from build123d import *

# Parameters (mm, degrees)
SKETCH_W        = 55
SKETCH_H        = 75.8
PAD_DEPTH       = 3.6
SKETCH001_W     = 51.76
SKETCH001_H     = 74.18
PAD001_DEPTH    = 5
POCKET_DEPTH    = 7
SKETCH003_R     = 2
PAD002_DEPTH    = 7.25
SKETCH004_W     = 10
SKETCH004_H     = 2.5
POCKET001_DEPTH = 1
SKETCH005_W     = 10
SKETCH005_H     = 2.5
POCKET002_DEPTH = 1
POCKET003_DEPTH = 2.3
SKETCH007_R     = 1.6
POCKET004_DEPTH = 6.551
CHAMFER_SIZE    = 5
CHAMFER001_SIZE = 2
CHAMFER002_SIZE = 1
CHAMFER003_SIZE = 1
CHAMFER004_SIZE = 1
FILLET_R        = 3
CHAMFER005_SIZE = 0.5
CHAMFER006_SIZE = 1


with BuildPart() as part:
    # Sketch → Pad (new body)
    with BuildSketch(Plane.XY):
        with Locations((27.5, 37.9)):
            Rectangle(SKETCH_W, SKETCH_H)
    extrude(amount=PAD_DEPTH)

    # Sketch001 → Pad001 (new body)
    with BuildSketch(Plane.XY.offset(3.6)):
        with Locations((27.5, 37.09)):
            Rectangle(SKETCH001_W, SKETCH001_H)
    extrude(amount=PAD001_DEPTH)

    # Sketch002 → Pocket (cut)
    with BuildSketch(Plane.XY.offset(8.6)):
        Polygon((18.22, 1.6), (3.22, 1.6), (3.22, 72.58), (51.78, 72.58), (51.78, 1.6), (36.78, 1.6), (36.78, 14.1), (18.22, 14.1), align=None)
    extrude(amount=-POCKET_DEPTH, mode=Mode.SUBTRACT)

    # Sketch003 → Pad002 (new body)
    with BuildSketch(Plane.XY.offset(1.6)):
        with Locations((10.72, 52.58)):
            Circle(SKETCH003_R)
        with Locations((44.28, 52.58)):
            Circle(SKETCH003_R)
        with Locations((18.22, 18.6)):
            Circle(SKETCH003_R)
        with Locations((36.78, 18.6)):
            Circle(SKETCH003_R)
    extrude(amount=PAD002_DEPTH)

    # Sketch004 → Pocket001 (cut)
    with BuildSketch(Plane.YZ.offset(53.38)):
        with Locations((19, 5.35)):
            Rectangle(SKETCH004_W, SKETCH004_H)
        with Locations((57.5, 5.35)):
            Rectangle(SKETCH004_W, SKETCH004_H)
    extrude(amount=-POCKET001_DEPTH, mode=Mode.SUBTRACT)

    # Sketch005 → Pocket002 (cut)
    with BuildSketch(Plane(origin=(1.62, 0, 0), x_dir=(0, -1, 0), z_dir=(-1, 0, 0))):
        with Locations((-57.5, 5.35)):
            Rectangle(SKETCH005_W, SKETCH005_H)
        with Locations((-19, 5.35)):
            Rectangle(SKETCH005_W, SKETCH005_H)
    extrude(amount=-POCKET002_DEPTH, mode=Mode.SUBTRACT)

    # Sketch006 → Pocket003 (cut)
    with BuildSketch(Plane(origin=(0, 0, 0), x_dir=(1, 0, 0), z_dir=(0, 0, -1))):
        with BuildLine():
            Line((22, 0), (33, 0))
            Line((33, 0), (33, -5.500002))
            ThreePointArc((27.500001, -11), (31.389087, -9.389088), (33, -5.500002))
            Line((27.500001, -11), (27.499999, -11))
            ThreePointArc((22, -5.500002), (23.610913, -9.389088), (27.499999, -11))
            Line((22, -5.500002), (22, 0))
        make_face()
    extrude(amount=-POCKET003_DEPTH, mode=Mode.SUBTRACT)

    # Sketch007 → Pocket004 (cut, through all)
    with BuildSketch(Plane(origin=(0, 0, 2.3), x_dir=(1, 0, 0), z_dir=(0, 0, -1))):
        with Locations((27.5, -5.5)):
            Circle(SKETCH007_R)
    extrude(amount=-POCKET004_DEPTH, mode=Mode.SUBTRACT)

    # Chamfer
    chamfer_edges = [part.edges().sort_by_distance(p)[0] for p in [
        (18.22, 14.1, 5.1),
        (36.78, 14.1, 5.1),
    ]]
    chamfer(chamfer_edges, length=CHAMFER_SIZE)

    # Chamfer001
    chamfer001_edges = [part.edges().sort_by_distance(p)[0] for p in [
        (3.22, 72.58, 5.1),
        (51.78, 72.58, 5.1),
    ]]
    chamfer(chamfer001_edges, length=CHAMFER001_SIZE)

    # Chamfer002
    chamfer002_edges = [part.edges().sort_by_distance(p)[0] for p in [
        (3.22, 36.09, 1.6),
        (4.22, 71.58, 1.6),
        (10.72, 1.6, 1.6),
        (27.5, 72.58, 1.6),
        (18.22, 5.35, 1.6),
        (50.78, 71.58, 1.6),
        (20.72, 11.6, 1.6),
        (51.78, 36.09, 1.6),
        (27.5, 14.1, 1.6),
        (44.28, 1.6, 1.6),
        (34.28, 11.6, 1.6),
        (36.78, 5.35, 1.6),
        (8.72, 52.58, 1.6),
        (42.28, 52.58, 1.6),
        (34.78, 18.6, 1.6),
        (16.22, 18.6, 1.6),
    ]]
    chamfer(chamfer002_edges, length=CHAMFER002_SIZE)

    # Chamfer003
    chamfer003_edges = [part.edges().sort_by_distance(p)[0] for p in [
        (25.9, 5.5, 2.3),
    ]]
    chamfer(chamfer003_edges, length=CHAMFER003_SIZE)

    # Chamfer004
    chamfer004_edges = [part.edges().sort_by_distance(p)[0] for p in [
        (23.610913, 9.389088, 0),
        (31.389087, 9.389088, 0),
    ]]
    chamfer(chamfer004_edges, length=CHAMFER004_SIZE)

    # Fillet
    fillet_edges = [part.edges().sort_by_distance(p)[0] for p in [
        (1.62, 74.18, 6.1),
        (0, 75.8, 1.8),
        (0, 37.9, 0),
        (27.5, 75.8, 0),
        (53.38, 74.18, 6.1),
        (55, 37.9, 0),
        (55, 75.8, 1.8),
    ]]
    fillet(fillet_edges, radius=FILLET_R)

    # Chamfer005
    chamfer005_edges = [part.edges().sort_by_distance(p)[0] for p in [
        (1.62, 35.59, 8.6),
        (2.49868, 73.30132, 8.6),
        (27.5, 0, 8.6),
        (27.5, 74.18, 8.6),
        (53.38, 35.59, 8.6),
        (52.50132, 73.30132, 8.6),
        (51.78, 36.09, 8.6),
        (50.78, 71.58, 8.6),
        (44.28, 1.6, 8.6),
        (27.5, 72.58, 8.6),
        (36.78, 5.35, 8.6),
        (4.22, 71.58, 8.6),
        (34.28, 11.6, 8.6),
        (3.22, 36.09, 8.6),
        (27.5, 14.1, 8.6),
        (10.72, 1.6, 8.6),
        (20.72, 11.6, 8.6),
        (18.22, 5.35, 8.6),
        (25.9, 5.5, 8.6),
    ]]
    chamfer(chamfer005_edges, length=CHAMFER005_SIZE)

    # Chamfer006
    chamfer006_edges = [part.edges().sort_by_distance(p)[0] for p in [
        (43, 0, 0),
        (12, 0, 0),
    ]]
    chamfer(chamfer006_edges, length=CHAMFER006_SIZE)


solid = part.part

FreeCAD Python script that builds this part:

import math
import FreeCAD as App
import Part
import Sketcher
from FreeCAD import Vector
Q = App.Units.Quantity


def edges_at(feature, points):
    """Names of the edges that pass closest to the given points."""
    edges = feature.Shape.Edges
    near = lambda p: min(range(len(edges)), key=lambda i: edges[i].distToShape(Part.Vertex(*p))[0])
    return sorted({f"Edge{near(p) + 1}" for p in points})

doc = App.newDocument("Part")
body = doc.addObject("PartDesign::Body", "Body")

# Sketch on XY plane
sketch1 = body.newObject("Sketcher::SketchObject", "Sketch")
sketch1.AttachmentSupport = (doc.getObject("XY_Plane"), [""])
sketch1.MapMode = "FlatFace"
sketch1.addGeometry(Part.LineSegment(Vector(0, 76, 0), Vector(0, 0, 0)), False)
sketch1.addGeometry(Part.LineSegment(Vector(0, 0, 0), Vector(55, 0, 0)), False)
sketch1.addGeometry(Part.LineSegment(Vector(55, 0, 0), Vector(55, 76, 0)), False)
sketch1.addGeometry(Part.LineSegment(Vector(55, 76, 0), Vector(0, 76, 0)), False)
sketch1.addConstraint(Sketcher.Constraint("Coincident", 0, 2, 1, 1))
sketch1.addConstraint(Sketcher.Constraint("Coincident", 1, 2, 2, 1))
sketch1.addConstraint(Sketcher.Constraint("Coincident", 2, 2, 3, 1))
sketch1.addConstraint(Sketcher.Constraint("Coincident", 3, 2, 0, 1))
sketch1.addConstraint(Sketcher.Constraint("Vertical", 0))
sketch1.addConstraint(Sketcher.Constraint("Horizontal", 1))
sketch1.addConstraint(Sketcher.Constraint("Vertical", 2))
sketch1.addConstraint(Sketcher.Constraint("Horizontal", 3))
sketch1.addConstraint(Sketcher.Constraint("Coincident", 0, 2, -1, 1))
sketch1.addConstraint(Sketcher.Constraint("DistanceX", 1, 1, 1, 2, Q("55 mm")))
sketch1.addConstraint(Sketcher.Constraint("DistanceY", 0, 2, 0, 1, Q("75.8 mm")))
pad1 = body.newObject("PartDesign::Pad", "Pad")
pad1.Profile = sketch1
pad1.Length = 3.6

# Sketch on XY plane
sketch2 = body.newObject("Sketcher::SketchObject", "Sketch001")
sketch2.AttachmentSupport = (doc.getObject("XY_Plane"), [""])
sketch2.MapMode = "FlatFace"
sketch2.AttachmentOffset = App.Placement(Vector(0, 0, 3.6), App.Rotation())
sketch2.addGeometry(Part.LineSegment(Vector(2, 74, 0), Vector(2, 0, 0)), False)
sketch2.addGeometry(Part.LineSegment(Vector(2, 0, 0), Vector(53, 0, 0)), False)
sketch2.addGeometry(Part.LineSegment(Vector(53, 0, 0), Vector(53, 74, 0)), False)
sketch2.addGeometry(Part.LineSegment(Vector(53, 74, 0), Vector(2, 74, 0)), False)
sketch2.addConstraint(Sketcher.Constraint("Coincident", 0, 2, 1, 1))
sketch2.addConstraint(Sketcher.Constraint("Coincident", 1, 2, 2, 1))
sketch2.addConstraint(Sketcher.Constraint("Coincident", 2, 2, 3, 1))
sketch2.addConstraint(Sketcher.Constraint("Coincident", 3, 2, 0, 1))
sketch2.addConstraint(Sketcher.Constraint("Vertical", 0))
sketch2.addConstraint(Sketcher.Constraint("Horizontal", 1))
sketch2.addConstraint(Sketcher.Constraint("Vertical", 2))
sketch2.addConstraint(Sketcher.Constraint("Horizontal", 3))
sketch2.addConstraint(Sketcher.Constraint("PointOnObject", 0, 2, -1))
sketch2.addConstraint(Sketcher.Constraint("DistanceX", 1, 1, 1, 2, Q("51.76 mm")))
sketch2.addConstraint(Sketcher.Constraint("DistanceY", 0, 2, 0, 1, Q("74.18 mm")))
sketch2.addConstraint(Sketcher.Constraint("DistanceX", -1, 1, 0, 2, Q("1.62 mm")))
pad2 = body.newObject("PartDesign::Pad", "Pad001")
pad2.Profile = sketch2
pad2.Length = 5

# Sketch on XY plane
sketch3 = body.newObject("Sketcher::SketchObject", "Sketch002")
sketch3.AttachmentSupport = (doc.getObject("XY_Plane"), [""])
sketch3.MapMode = "FlatFace"
sketch3.AttachmentOffset = App.Placement(Vector(0, 0, 8.6), App.Rotation())
sketch3.addGeometry(Part.LineSegment(Vector(3, 2, 0), Vector(18, 2, 0)), False)
sketch3.addGeometry(Part.LineSegment(Vector(18, 2, 0), Vector(18, 14, 0)), False)
sketch3.addGeometry(Part.LineSegment(Vector(18, 14, 0), Vector(37, 14, 0)), False)
sketch3.addGeometry(Part.LineSegment(Vector(37, 14, 0), Vector(37, 2, 0)), False)
sketch3.addGeometry(Part.LineSegment(Vector(37, 2, 0), Vector(52, 2, 0)), False)
sketch3.addGeometry(Part.LineSegment(Vector(52, 2, 0), Vector(52, 73, 0)), False)
sketch3.addGeometry(Part.LineSegment(Vector(52, 73, 0), Vector(3, 73, 0)), False)
sketch3.addGeometry(Part.LineSegment(Vector(3, 73, 0), Vector(3, 2, 0)), False)
sketch3.addConstraint(Sketcher.Constraint("Coincident", 0, 2, 1, 1))
sketch3.addConstraint(Sketcher.Constraint("Coincident", 1, 2, 2, 1))
sketch3.addConstraint(Sketcher.Constraint("Coincident", 2, 2, 3, 1))
sketch3.addConstraint(Sketcher.Constraint("Coincident", 3, 2, 4, 1))
sketch3.addConstraint(Sketcher.Constraint("Coincident", 4, 2, 5, 1))
sketch3.addConstraint(Sketcher.Constraint("Coincident", 5, 2, 6, 1))
sketch3.addConstraint(Sketcher.Constraint("Coincident", 6, 2, 7, 1))
sketch3.addConstraint(Sketcher.Constraint("Coincident", 7, 2, 0, 1))
sketch3.addConstraint(Sketcher.Constraint("Horizontal", 0))
sketch3.addConstraint(Sketcher.Constraint("Vertical", 1))
sketch3.addConstraint(Sketcher.Constraint("Horizontal", 2))
sketch3.addConstraint(Sketcher.Constraint("Vertical", 3))
sketch3.addConstraint(Sketcher.Constraint("Horizontal", 4))
sketch3.addConstraint(Sketcher.Constraint("Vertical", 5))
sketch3.addConstraint(Sketcher.Constraint("Horizontal", 6))
sketch3.addConstraint(Sketcher.Constraint("Vertical", 7))
sketch3.addConstraint(Sketcher.Constraint("Horizontal", 0, 2, 3, 2))
sketch3.addConstraint(Sketcher.Constraint("Equal", 0, 4))
sketch3.addConstraint(Sketcher.Constraint("DistanceX", 0, 1, 0, 2, Q("15 mm")))
sketch3.addConstraint(Sketcher.Constraint("DistanceY", 1, 1, 1, 2, Q("12.5 mm")))
sketch3.addConstraint(Sketcher.Constraint("DistanceX", 2, 1, 2, 2, Q("18.56 mm")))
sketch3.addConstraint(Sketcher.Constraint("DistanceY", 5, 1, 5, 2, Q("70.98 mm")))
sketch3.addConstraint(Sketcher.Constraint("DistanceY", -1, 1, 0, 2, Q("1.6 mm")))
sketch3.addConstraint(Sketcher.Constraint("DistanceX", -1, 1, 0, 2, Q("18.22 mm")))
pocket1 = body.newObject("PartDesign::Pocket", "Pocket")
pocket1.Profile = sketch3
pocket1.Length = 7

# Sketch on XY plane
sketch4 = body.newObject("Sketcher::SketchObject", "Sketch003")
sketch4.AttachmentSupport = (doc.getObject("XY_Plane"), [""])
sketch4.MapMode = "FlatFace"
sketch4.AttachmentOffset = App.Placement(Vector(0, 0, 1.6), App.Rotation())
sketch4.addGeometry(Part.Circle(Vector(10.7, 52.6, 0), Vector(0, 0, 1), 2), False)
sketch4.addGeometry(Part.Circle(Vector(44.3, 52.6, 0), Vector(0, 0, 1), 2), False)
sketch4.addGeometry(Part.Circle(Vector(18.2, 18.6, 0), Vector(0, 0, 1), 2), False)
sketch4.addGeometry(Part.Circle(Vector(36.8, 18.6, 0), Vector(0, 0, 1), 2), False)
sketch4.addConstraint(Sketcher.Constraint("Equal", 0, 1))
sketch4.addConstraint(Sketcher.Constraint("Equal", 1, 2))
sketch4.addConstraint(Sketcher.Constraint("Equal", 2, 3))
sketch4.addConstraint(Sketcher.Constraint("Horizontal", 0, 3, 1, 3))
sketch4.addConstraint(Sketcher.Constraint("Horizontal", 2, 3, 3, 3))
sketch4.addConstraint(Sketcher.Constraint("Diameter", 0, Q("4 mm")))
sketch4.addConstraint(Sketcher.Constraint("DistanceY", -1, 1, 2, 3, Q("18.6 mm")))
sketch4.addConstraint(Sketcher.Constraint("DistanceX", 0, 3, 2, 3, Q("7.5 mm")))
sketch4.addConstraint(Sketcher.Constraint("DistanceX", 3, 3, 1, 3, Q("7.5 mm")))
sketch4.addConstraint(Sketcher.Constraint("DistanceX", -1, 1, 0, 3, Q("10.72 mm")))
sketch4.addConstraint(Sketcher.Constraint("DistanceY", -1, 1, 0, 3, Q("52.58 mm")))
sketch4.addConstraint(Sketcher.Constraint("DistanceX", -1, 1, 1, 3, Q("44.28 mm")))
pad3 = body.newObject("PartDesign::Pad", "Pad002")
pad3.Profile = sketch4
pad3.Length = 7.25

# Sketch on YZ plane
sketch5 = body.newObject("Sketcher::SketchObject", "Sketch004")
sketch5.AttachmentSupport = (doc.getObject("YZ_Plane"), [""])
sketch5.MapMode = "FlatFace"
sketch5.AttachmentOffset = App.Placement(Vector(0, 0, 53.38), App.Rotation())
sketch5.addGeometry(Part.LineSegment(Vector(14, 6.6, 0), Vector(14, 4.1, 0)), False)
sketch5.addGeometry(Part.LineSegment(Vector(14, 4.1, 0), Vector(24, 4.1, 0)), False)
sketch5.addGeometry(Part.LineSegment(Vector(24, 4.1, 0), Vector(24, 6.6, 0)), False)
sketch5.addGeometry(Part.LineSegment(Vector(24, 6.6, 0), Vector(14, 6.6, 0)), False)
sketch5.addGeometry(Part.LineSegment(Vector(52.5, 6.6, 0), Vector(52.5, 4.1, 0)), False)
sketch5.addGeometry(Part.LineSegment(Vector(52.5, 4.1, 0), Vector(62.5, 4.1, 0)), False)
sketch5.addGeometry(Part.LineSegment(Vector(62.5, 4.1, 0), Vector(62.5, 6.6, 0)), False)
sketch5.addGeometry(Part.LineSegment(Vector(62.5, 6.6, 0), Vector(52.5, 6.6, 0)), False)
sketch5.addConstraint(Sketcher.Constraint("Coincident", 0, 2, 1, 1))
sketch5.addConstraint(Sketcher.Constraint("Coincident", 1, 2, 2, 1))
sketch5.addConstraint(Sketcher.Constraint("Coincident", 2, 2, 3, 1))
sketch5.addConstraint(Sketcher.Constraint("Coincident", 3, 2, 0, 1))
sketch5.addConstraint(Sketcher.Constraint("Coincident", 4, 2, 5, 1))
sketch5.addConstraint(Sketcher.Constraint("Coincident", 5, 2, 6, 1))
sketch5.addConstraint(Sketcher.Constraint("Coincident", 6, 2, 7, 1))
sketch5.addConstraint(Sketcher.Constraint("Coincident", 7, 2, 4, 1))
sketch5.addConstraint(Sketcher.Constraint("Vertical", 0))
sketch5.addConstraint(Sketcher.Constraint("Horizontal", 1))
sketch5.addConstraint(Sketcher.Constraint("Vertical", 2))
sketch5.addConstraint(Sketcher.Constraint("Horizontal", 3))
sketch5.addConstraint(Sketcher.Constraint("Vertical", 4))
sketch5.addConstraint(Sketcher.Constraint("Horizontal", 5))
sketch5.addConstraint(Sketcher.Constraint("Vertical", 6))
sketch5.addConstraint(Sketcher.Constraint("Horizontal", 7))
sketch5.addConstraint(Sketcher.Constraint("Horizontal", 1, 2, 4, 2))
sketch5.addConstraint(Sketcher.Constraint("Horizontal", 3, 2, 6, 2))
sketch5.addConstraint(Sketcher.Constraint("Equal", 3, 5))
sketch5.addConstraint(Sketcher.Constraint("DistanceX", 1, 1, 1, 2, Q("10 mm")))
sketch5.addConstraint(Sketcher.Constraint("DistanceY", 0, 2, 0, 1, Q("2.5 mm")))
sketch5.addConstraint(Sketcher.Constraint("DistanceX", -1, 1, 0, 2, Q("14 mm")))
sketch5.addConstraint(Sketcher.Constraint("DistanceY", -1, 1, 0, 2, Q("4.1 mm")))
sketch5.addConstraint(Sketcher.Constraint("DistanceX", -1, 1, 4, 2, Q("52.5 mm")))
pocket2 = body.newObject("PartDesign::Pocket", "Pocket001")
pocket2.Profile = sketch5
pocket2.Length = 1

# Sketch on YZ plane
sketch6 = body.newObject("Sketcher::SketchObject", "Sketch005")
sketch6.AttachmentSupport = (doc.getObject("YZ_Plane"), [""])
sketch6.MapMode = "FlatFace"
sketch6.AttachmentOffset = App.Placement(Vector(0, 0, 1.62), App.Rotation())
sketch6.addGeometry(Part.LineSegment(Vector(62.5, 6.6, 0), Vector(62.5, 4.1, 0)), False)
sketch6.addGeometry(Part.LineSegment(Vector(62.5, 4.1, 0), Vector(52.5, 4.1, 0)), False)
sketch6.addGeometry(Part.LineSegment(Vector(52.5, 4.1, 0), Vector(52.5, 6.6, 0)), False)
sketch6.addGeometry(Part.LineSegment(Vector(52.5, 6.6, 0), Vector(62.5, 6.6, 0)), False)
sketch6.addGeometry(Part.LineSegment(Vector(24, 6.6, 0), Vector(24, 4.1, 0)), False)
sketch6.addGeometry(Part.LineSegment(Vector(24, 4.1, 0), Vector(14, 4.1, 0)), False)
sketch6.addGeometry(Part.LineSegment(Vector(14, 4.1, 0), Vector(14, 6.6, 0)), False)
sketch6.addGeometry(Part.LineSegment(Vector(14, 6.6, 0), Vector(24, 6.6, 0)), False)
sketch6.addConstraint(Sketcher.Constraint("Coincident", 0, 2, 1, 1))
sketch6.addConstraint(Sketcher.Constraint("Coincident", 1, 2, 2, 1))
sketch6.addConstraint(Sketcher.Constraint("Coincident", 2, 2, 3, 1))
sketch6.addConstraint(Sketcher.Constraint("Coincident", 3, 2, 0, 1))
sketch6.addConstraint(Sketcher.Constraint("Coincident", 4, 2, 5, 1))
sketch6.addConstraint(Sketcher.Constraint("Coincident", 5, 2, 6, 1))
sketch6.addConstraint(Sketcher.Constraint("Coincident", 6, 2, 7, 1))
sketch6.addConstraint(Sketcher.Constraint("Coincident", 7, 2, 4, 1))
sketch6.addConstraint(Sketcher.Constraint("Vertical", 0))
sketch6.addConstraint(Sketcher.Constraint("Horizontal", 1))
sketch6.addConstraint(Sketcher.Constraint("Vertical", 2))
sketch6.addConstraint(Sketcher.Constraint("Horizontal", 3))
sketch6.addConstraint(Sketcher.Constraint("Vertical", 4))
sketch6.addConstraint(Sketcher.Constraint("Horizontal", 5))
sketch6.addConstraint(Sketcher.Constraint("Vertical", 6))
sketch6.addConstraint(Sketcher.Constraint("Horizontal", 7))
sketch6.addConstraint(Sketcher.Constraint("Horizontal", 1, 2, 4, 2))
sketch6.addConstraint(Sketcher.Constraint("Horizontal", 3, 2, 6, 2))
sketch6.addConstraint(Sketcher.Constraint("Equal", 3, 5))
sketch6.addConstraint(Sketcher.Constraint("DistanceX", 1, 2, 1, 1, Q("10 mm")))
sketch6.addConstraint(Sketcher.Constraint("DistanceY", 0, 2, 0, 1, Q("2.5 mm")))
sketch6.addConstraint(Sketcher.Constraint("DistanceX", -1, 1, 4, 2, Q("24 mm")))
sketch6.addConstraint(Sketcher.Constraint("DistanceX", -1, 1, 0, 2, Q("62.5 mm")))
sketch6.addConstraint(Sketcher.Constraint("DistanceY", -1, 1, 0, 2, Q("4.1 mm")))
pocket3 = body.newObject("PartDesign::Pocket", "Pocket002")
pocket3.Profile = sketch6
pocket3.Length = 1
pocket3.Reversed = True

# Sketch on XY plane
sketch7 = body.newObject("Sketcher::SketchObject", "Sketch006")
sketch7.AttachmentSupport = (doc.getObject("XY_Plane"), [""])
sketch7.MapMode = "FlatFace"
sketch7.addGeometry(Part.LineSegment(Vector(33, 0, 0), Vector(22, 0, 0)), False)
sketch7.addGeometry(Part.LineSegment(Vector(22, 0, 0), Vector(22, 5.500002, 0)), False)
sketch7.addGeometry(Part.ArcOfCircle(Part.Circle(Vector(27.499999, 5.500001, 0), Vector(0, 0, 1), 5.499999), math.radians(90.000003), math.radians(179.999986)), False)
sketch7.addGeometry(Part.LineSegment(Vector(27.500001, 11, 0), Vector(27.499999, 11, 0)), False)
sketch7.addGeometry(Part.ArcOfCircle(Part.Circle(Vector(27.500001, 5.500001, 0), Vector(0, 0, 1), 5.499999), math.radians(0.000014), math.radians(89.999997)), False)
sketch7.addGeometry(Part.LineSegment(Vector(33, 5.500002, 0), Vector(33, 0, 0)), False)
sketch7.addConstraint(Sketcher.Constraint("Coincident", 0, 2, 1, 1))
sketch7.addConstraint(Sketcher.Constraint("Coincident", 1, 2, 2, 2))
sketch7.addConstraint(Sketcher.Constraint("Coincident", 2, 1, 3, 1))
sketch7.addConstraint(Sketcher.Constraint("Coincident", 3, 2, 4, 2))
sketch7.addConstraint(Sketcher.Constraint("Coincident", 4, 1, 5, 1))
sketch7.addConstraint(Sketcher.Constraint("Coincident", 5, 2, 0, 1))
sketch7.addConstraint(Sketcher.Constraint("Horizontal", 0))
sketch7.addConstraint(Sketcher.Constraint("Vertical", 1))
sketch7.addConstraint(Sketcher.Constraint("Horizontal", 3))
sketch7.addConstraint(Sketcher.Constraint("Vertical", 5))
sketch7.addConstraint(Sketcher.Constraint("Coincident", 4, 3, 2, 3))
sketch7.addConstraint(Sketcher.Constraint("PointOnObject", 0, 2, -1))
sketch7.addConstraint(Sketcher.Constraint("Radius", 2, Q("5.499999 mm")))
sketch7.addConstraint(Sketcher.Constraint("DistanceX", -1, 1, 0, 2, Q("22 mm")))
sketch7.addConstraint(Sketcher.Constraint("DistanceY", -1, 1, 2, 1, Q("11 mm")))
sketch7.addConstraint(Sketcher.Constraint("DistanceX", -1, 1, 2, 1, Q("27.499999 mm")))
sketch7.addConstraint(Sketcher.Constraint("DistanceX", -1, 1, 3, 2, Q("27.499999 mm")))
sketch7.addConstraint(Sketcher.Constraint("DistanceY", 1, 1, 1, 2, Q("5.500002 mm")))
sketch7.addConstraint(Sketcher.Constraint("DistanceY", 5, 2, 5, 1, Q("5.500002 mm")))
pocket4 = body.newObject("PartDesign::Pocket", "Pocket003")
pocket4.Profile = sketch7
pocket4.Length = 2.3
pocket4.Reversed = True

# Sketch on XY plane
sketch8 = body.newObject("Sketcher::SketchObject", "Sketch007")
sketch8.AttachmentSupport = (doc.getObject("XY_Plane"), [""])
sketch8.MapMode = "FlatFace"
sketch8.AttachmentOffset = App.Placement(Vector(0, 0, 2.3), App.Rotation())
sketch8.addGeometry(Part.Circle(Vector(27.5, 5.5, 0), Vector(0, 0, 1), 1.6), False)
sketch8.addConstraint(Sketcher.Constraint("Diameter", 0, Q("3.2 mm")))
sketch8.addConstraint(Sketcher.Constraint("DistanceX", -1, 1, 0, 3, Q("27.5 mm")))
sketch8.addConstraint(Sketcher.Constraint("DistanceY", -1, 1, 0, 3, Q("5.5 mm")))
pocket5 = body.newObject("PartDesign::Pocket", "Pocket004")
pocket5.Profile = sketch8
pocket5.Type = "ThroughAll"
pocket5.Reversed = True
doc.recompute()

chamfer = body.newObject("PartDesign::Chamfer", "Chamfer")
chamfer.Base = (pocket5, edges_at(pocket5, [(18.22, 14.1, 5.1), (36.78, 14.1, 5.1)]))
chamfer.Size = 5
doc.recompute()

chamfer2 = body.newObject("PartDesign::Chamfer", "Chamfer001")
chamfer2.Base = (chamfer, edges_at(chamfer, [(3.22, 72.58, 5.1), (51.78, 72.58, 5.1)]))
chamfer2.Size = 2
doc.recompute()

chamfer3 = body.newObject("PartDesign::Chamfer", "Chamfer002")
chamfer3.Base = (chamfer2, edges_at(chamfer2, [
    (3.22, 36.09, 1.6),
    (4.22, 71.58, 1.6),
    (10.72, 1.6, 1.6),
    (27.5, 72.58, 1.6),
    (18.22, 5.35, 1.6),
    (50.78, 71.58, 1.6),
    (20.72, 11.6, 1.6),
    (51.78, 36.09, 1.6),
    (27.5, 14.1, 1.6),
    (44.28, 1.6, 1.6),
    (34.28, 11.6, 1.6),
    (36.78, 5.35, 1.6),
    (8.72, 52.58, 1.6),
    (42.28, 52.58, 1.6),
    (34.78, 18.6, 1.6),
    (16.22, 18.6, 1.6),
]))
chamfer3.Size = 1
doc.recompute()

chamfer4 = body.newObject("PartDesign::Chamfer", "Chamfer003")
chamfer4.Base = (chamfer3, edges_at(chamfer3, [(25.9, 5.5, 2.3)]))
chamfer4.Size = 1
doc.recompute()

chamfer5 = body.newObject("PartDesign::Chamfer", "Chamfer004")
chamfer5.Base = (chamfer4, edges_at(chamfer4, [(23.611, 9.389, 0), (31.389, 9.389, 0)]))
chamfer5.Size = 1
doc.recompute()

fillet = body.newObject("PartDesign::Fillet", "Fillet")
fillet.Base = (chamfer5, edges_at(chamfer5, [
    (1.62, 74.18, 6.1),
    (0, 75.8, 1.8),
    (0, 37.9, 0),
    (27.5, 75.8, 0),
    (53.38, 74.18, 6.1),
    (55, 37.9, 0),
    (55, 75.8, 1.8),
]))
fillet.Radius = 3
doc.recompute()

chamfer6 = body.newObject("PartDesign::Chamfer", "Chamfer005")
chamfer6.Base = (fillet, edges_at(fillet, [
    (1.62, 35.59, 8.6),
    (2.499, 73.301, 8.6),
    (27.5, 0, 8.6),
    (27.5, 74.18, 8.6),
    (53.38, 35.59, 8.6),
    (52.501, 73.301, 8.6),
    (51.78, 36.09, 8.6),
    (50.78, 71.58, 8.6),
    (44.28, 1.6, 8.6),
    (27.5, 72.58, 8.6),
    (36.78, 5.35, 8.6),
    (4.22, 71.58, 8.6),
    (34.28, 11.6, 8.6),
    (3.22, 36.09, 8.6),
    (27.5, 14.1, 8.6),
    (10.72, 1.6, 8.6),
    (20.72, 11.6, 8.6),
    (18.22, 5.35, 8.6),
    (25.9, 5.5, 8.6),
]))
chamfer6.Size = 0.5
doc.recompute()

chamfer7 = body.newObject("PartDesign::Chamfer", "Chamfer006")
chamfer7.Base = (chamfer6, edges_at(chamfer6, [(43, 0, 0), (12, 0, 0)]))
chamfer7.Size = 1

doc.recompute()
